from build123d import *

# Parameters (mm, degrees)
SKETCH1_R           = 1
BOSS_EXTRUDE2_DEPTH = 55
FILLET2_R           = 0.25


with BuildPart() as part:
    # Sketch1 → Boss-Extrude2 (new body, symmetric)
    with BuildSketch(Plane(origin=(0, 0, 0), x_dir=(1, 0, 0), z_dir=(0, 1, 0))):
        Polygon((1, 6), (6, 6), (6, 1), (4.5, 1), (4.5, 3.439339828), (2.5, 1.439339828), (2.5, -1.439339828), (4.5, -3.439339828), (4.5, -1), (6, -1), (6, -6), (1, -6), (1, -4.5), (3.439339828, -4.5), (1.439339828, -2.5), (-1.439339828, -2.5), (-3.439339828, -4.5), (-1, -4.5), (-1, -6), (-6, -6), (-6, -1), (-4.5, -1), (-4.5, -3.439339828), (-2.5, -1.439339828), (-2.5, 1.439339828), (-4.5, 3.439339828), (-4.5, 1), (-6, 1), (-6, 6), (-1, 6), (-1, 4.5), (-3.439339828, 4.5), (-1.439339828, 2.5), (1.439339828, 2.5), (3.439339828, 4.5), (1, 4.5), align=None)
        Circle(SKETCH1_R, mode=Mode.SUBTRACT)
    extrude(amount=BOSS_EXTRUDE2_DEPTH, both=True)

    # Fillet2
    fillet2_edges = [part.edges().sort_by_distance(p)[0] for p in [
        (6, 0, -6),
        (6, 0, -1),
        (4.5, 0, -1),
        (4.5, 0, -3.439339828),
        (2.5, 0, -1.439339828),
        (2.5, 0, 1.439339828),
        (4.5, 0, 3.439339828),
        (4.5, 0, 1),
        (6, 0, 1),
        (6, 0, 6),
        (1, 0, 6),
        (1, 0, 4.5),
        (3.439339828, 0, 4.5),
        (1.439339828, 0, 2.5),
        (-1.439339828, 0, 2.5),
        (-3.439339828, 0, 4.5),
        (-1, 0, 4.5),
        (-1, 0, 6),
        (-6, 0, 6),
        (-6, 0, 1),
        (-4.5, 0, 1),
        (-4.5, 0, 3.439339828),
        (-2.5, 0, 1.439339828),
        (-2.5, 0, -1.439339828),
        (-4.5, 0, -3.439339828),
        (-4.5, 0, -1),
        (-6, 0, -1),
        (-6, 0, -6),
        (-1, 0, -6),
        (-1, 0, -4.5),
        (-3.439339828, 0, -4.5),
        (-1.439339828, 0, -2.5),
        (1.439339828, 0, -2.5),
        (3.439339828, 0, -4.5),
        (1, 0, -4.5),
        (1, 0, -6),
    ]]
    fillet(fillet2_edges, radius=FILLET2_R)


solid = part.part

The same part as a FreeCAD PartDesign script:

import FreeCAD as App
import Part
import Sketcher

V = App.Vector


def edges_at(feature, points):
    """Names of the edges that pass closest to the given points."""
    edges = feature.Shape.Edges
    near = lambda p: min(range(len(edges)), key=lambda i: edges[i].distToShape(Part.Vertex(*p))[0])
    return sorted({f"Edge{near(p) + 1}" for p in points})


def add_polygon(sketch, points):
    """Adds a closed chain of lines whose ends are joined by coincident constraints."""
    first, n = sketch.GeometryCount, len(points)
    for a, b in zip(points, points[1:] + points[:1]):
        sketch.addGeometry(Part.LineSegment(App.Vector(*a, 0), App.Vector(*b, 0)), False)
    for i in range(n):
        sketch.addConstraint(Sketcher.Constraint("Coincident", first + i, 2, first + (i + 1) % n, 1))

doc = App.newDocument("Part")
body = doc.addObject("PartDesign::Body", "Body")

# Sketch on XZ plane
sketch1 = body.newObject("Sketcher::SketchObject", "Sketch")
sketch1.AttachmentSupport = (doc.getObject("XZ_Plane"), [""])
sketch1.MapMode = "FlatFace"
add_polygon(sketch1, [(6, -6), (1, -6), (1, -4.5), (3.4, -4.5), (1.4, -2.5), (-1.4, -2.5), (-3.4, -4.5), (-1, -4.5), (-1, -6), (-6, -6), (-6, -1), (-4.5, -1), (-4.5, -3.4), (-2.5, -1.4), (-2.5, 1.4), (-4.5, 3.4), (-4.5, 1), (-6, 1), (-6, 6), (-1, 6), (-1, 4.5), (-3.4, 4.5), (-1.4, 2.5), (1.4, 2.5), (3.4, 4.5), (1, 4.5), (1, 6), (6, 6), (6, 1), (4.5, 1), (4.5, 3.4), (2.5, 1.4), (2.5, -1.4), (4.5, -3.4), (4.5, -1), (6, -1)])  # lines 0-35
sketch1.addGeometry(Part.Circle(V(0, 0, 0), V(0, 0, 1), 1), False)  # 36
sketch1.addConstraint([
    Sketcher.Constraint("Horizontal", 0),
    Sketcher.Constraint("Vertical", 1),
    Sketcher.Constraint("Horizontal", 2),
    Sketcher.Constraint("Horizontal", 4),
    Sketcher.Constraint("Horizontal", 6),
    Sketcher.Constraint("Vertical", 7),
    Sketcher.Constraint("Horizontal", 8),
    Sketcher.Constraint("Vertical", 9),
    Sketcher.Constraint("Horizontal", 10),
    Sketcher.Constraint("Vertical", 11),
    Sketcher.Constraint("Vertical", 13),
    Sketcher.Constraint("Vertical", 15),
    Sketcher.Constraint("Horizontal", 16),
    Sketcher.Constraint("Vertical", 17),
    Sketcher.Constraint("Horizontal", 18),
    Sketcher.Constraint("Vertical", 19),
    Sketcher.Constraint("Horizontal", 20),
    Sketcher.Constraint("Horizontal", 22),
    Sketcher.Constraint("Horizontal", 24),
    Sketcher.Constraint("Vertical", 25),
    Sketcher.Constraint("Horizontal", 26),
    Sketcher.Constraint("Vertical", 27),
    Sketcher.Constraint("Horizontal", 28),
    Sketcher.Constraint("Vertical", 29),
    Sketcher.Constraint("Vertical", 31),
    Sketcher.Constraint("Vertical", 33),
    Sketcher.Constraint("Horizontal", 34),
    Sketcher.Constraint("Vertical", 35),
    Sketcher.Constraint("Coincident", 36, 3, -1, 1),
    Sketcher.Constraint("Symmetric", 0, 2, 18, 2, -1, 1),
    Sketcher.Constraint("Symmetric", 2, 2, 20, 2, -1, 1),
    Sketcher.Constraint("Symmetric", 3, 2, 21, 2, -1, 1),
    Sketcher.Constraint("Symmetric", 5, 2, 23, 2, -1, 1),
    Sketcher.Constraint("Symmetric", 7, 2, 25, 2, -1, 1),
    Sketcher.Constraint("Symmetric", 9, 2, 27, 2, -1, 1),
    Sketcher.Constraint("Symmetric", 11, 2, 29, 2, -1, 1),
    Sketcher.Constraint("Symmetric", 12, 2, 30, 2, -1, 1),
    Sketcher.Constraint("Symmetric", 14, 2, 32, 2, -1, 1),
    Sketcher.Constraint("Symmetric", 16, 2, 34, 2, -1, 1),
    Sketcher.Constraint("Symmetric", 2, 2, 5, 2, -2),
    Sketcher.Constraint("Symmetric", 0, 2, 7, 2, -2),
    Sketcher.Constraint("Symmetric", 16, 2, 27, 2, -2),
    Sketcher.Constraint("Symmetric", 14, 2, 29, 2, -2),
    Sketcher.Constraint("Perpendicular", 3, 5),
    Sketcher.Constraint("Parallel", 5, 12),
    Sketcher.Constraint("Perpendicular", 12, 14),
    Sketcher.Constraint("Perpendicular", 21, 23),
    Sketcher.Constraint("Perpendicular", 30, 32),
    Sketcher.Constraint("Horizontal", 13, 2, 30, 2),
    Sketcher.Constraint("Equal", 34, 1),
    Sketcher.Constraint("Equal", 26, 9),
    Sketcher.Constraint("Equal", 24, 11),
    Sketcher.Constraint("Equal", 22, 13),
    Sketcher.Constraint("Equal", 5, 12),
    Sketcher.Constraint("Diameter", 36, 2.0),
    Sketcher.Constraint("DistanceX", 0, 2, 0, 1, 5.0),
    Sketcher.Constraint("DistanceX", 10, 1, 10, 2, 1.5),
    Sketcher.Constraint("DistanceX", -1, 1, 0, 2, 1.0),
    Sketcher.Constraint("DistanceY", 1, 2, 3, 2, 2.0),
    Sketcher.Constraint("DistanceX", 2, 1, 2, 2, 2.43934),
])
pad1 = body.newObject("PartDesign::Pad", "Pad")
pad1.Profile = sketch1
pad1.Length = 110
pad1.Midplane = True
doc.recompute()

fillet = body.newObject("PartDesign::Fillet", "Fillet")
fillet.Base = (pad1, edges_at(pad1, [
    (6, 0, -6),
    (6, 0, -1),
    (4.5, 0, -1),
    (4.5, 0, -3.439),
    (2.5, 0, -1.439),
    (2.5, 0, 1.439),
    (4.5, 0, 3.439),
    (4.5, 0, 1),
    (6, 0, 1),
    (6, 0, 6),
    (1, 0, 6),
    (1, 0, 4.5),
    (3.439, 0, 4.5),
    (1.439, 0, 2.5),
    (-1.439, 0, 2.5),
    (-3.439, 0, 4.5),
    (-1, 0, 4.5),
    (-1, 0, 6),
    (-6, 0, 6),
    (-6, 0, 1),
    (-4.5, 0, 1),
    (-4.5, 0, 3.439),
    (-2.5, 0, 1.439),
    (-2.5, 0, -1.439),
    (-4.5, 0, -3.439),
    (-4.5, 0, -1),
    (-6, 0, -1),
    (-6, 0, -6),
    (-1, 0, -6),
    (-1, 0, -4.5),
    (-3.439, 0, -4.5),
    (-1.439, 0, -2.5),
    (1.439, 0, -2.5),
    (3.439, 0, -4.5),
    (1, 0, -4.5),
    (1, 0, -6),
]))
fillet.Radius = 0.25

doc.recompute()
